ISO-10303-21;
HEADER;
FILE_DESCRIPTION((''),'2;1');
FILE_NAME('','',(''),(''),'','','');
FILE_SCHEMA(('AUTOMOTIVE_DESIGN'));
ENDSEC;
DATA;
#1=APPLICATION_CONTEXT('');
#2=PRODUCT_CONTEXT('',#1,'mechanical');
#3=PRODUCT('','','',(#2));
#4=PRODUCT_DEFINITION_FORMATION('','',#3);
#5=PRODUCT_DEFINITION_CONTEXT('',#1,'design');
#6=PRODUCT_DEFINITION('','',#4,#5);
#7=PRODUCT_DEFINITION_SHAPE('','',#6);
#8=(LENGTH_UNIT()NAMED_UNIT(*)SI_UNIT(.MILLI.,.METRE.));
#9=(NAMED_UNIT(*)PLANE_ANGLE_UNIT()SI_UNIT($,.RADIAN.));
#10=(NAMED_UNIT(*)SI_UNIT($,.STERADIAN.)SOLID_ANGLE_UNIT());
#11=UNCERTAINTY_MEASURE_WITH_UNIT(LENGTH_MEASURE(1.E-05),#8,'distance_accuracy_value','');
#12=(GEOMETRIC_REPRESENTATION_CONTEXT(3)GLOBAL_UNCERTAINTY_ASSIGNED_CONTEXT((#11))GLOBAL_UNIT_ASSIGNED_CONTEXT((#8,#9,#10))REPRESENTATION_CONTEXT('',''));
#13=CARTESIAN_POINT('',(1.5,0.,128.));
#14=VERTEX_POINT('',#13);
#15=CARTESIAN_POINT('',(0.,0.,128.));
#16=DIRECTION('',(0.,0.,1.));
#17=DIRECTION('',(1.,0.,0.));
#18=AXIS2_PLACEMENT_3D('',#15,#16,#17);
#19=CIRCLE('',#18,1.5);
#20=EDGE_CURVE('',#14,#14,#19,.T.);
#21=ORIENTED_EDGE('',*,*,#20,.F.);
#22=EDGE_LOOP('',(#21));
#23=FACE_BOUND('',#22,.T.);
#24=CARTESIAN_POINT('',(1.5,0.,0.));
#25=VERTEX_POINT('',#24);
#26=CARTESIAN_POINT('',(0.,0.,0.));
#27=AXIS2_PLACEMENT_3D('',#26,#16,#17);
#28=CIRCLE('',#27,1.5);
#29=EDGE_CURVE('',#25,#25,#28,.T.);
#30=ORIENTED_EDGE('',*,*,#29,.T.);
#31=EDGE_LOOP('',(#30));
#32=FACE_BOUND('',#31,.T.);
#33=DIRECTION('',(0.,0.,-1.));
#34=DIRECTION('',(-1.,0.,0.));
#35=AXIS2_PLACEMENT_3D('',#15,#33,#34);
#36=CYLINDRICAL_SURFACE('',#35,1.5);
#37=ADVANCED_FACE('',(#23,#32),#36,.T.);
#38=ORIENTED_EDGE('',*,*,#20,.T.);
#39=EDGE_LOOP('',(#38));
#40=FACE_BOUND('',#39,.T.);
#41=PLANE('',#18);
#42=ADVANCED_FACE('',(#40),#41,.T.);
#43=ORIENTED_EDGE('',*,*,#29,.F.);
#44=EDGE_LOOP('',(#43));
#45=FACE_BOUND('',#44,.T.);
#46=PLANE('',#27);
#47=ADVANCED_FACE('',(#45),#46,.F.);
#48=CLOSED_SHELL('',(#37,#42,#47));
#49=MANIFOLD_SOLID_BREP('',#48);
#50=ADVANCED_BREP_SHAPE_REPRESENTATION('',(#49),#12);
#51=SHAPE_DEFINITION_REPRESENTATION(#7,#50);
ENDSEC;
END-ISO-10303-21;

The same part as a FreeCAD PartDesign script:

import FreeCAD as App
import Part
import Sketcher
from FreeCAD import Vector
Q = App.Units.Quantity

doc = App.newDocument("Part")
params = doc.addObject("Spreadsheet::Sheet", "Params")
for row, (alias, value) in enumerate([
    ("sketch1_diameter", "3 mm"),
    ("pad1_length", "128 mm"),
], start=1):
    params.set(f"A{row}", alias)
    params.set(f"B{row}", "=" + value)
    params.setAlias(f"B{row}", alias)

body = doc.addObject("PartDesign::Body", "Body")

# Sketch on XY plane
sketch1 = body.newObject("Sketcher::SketchObject", "Sketch")
sketch1.AttachmentSupport = (doc.getObject("XY_Plane"), [""])
sketch1.MapMode = "FlatFace"
sketch1.addGeometry(Part.Circle(Vector(0, 0, 0), Vector(0, 0, 1), 1.5), False)
sketch1.addConstraint([
    Sketcher.Constraint("Coincident", 0, 3, -1, 1),
    Sketcher.Constraint("Diameter", 0, Q("3 mm")),
])
sketch1.setExpression("Constraints[1]", "Params.sketch1_diameter")
pad1 = body.newObject("PartDesign::Pad", "Pad")
pad1.Profile = sketch1
pad1.setExpression("Length", "Params.pad1_length")

doc.recompute()
